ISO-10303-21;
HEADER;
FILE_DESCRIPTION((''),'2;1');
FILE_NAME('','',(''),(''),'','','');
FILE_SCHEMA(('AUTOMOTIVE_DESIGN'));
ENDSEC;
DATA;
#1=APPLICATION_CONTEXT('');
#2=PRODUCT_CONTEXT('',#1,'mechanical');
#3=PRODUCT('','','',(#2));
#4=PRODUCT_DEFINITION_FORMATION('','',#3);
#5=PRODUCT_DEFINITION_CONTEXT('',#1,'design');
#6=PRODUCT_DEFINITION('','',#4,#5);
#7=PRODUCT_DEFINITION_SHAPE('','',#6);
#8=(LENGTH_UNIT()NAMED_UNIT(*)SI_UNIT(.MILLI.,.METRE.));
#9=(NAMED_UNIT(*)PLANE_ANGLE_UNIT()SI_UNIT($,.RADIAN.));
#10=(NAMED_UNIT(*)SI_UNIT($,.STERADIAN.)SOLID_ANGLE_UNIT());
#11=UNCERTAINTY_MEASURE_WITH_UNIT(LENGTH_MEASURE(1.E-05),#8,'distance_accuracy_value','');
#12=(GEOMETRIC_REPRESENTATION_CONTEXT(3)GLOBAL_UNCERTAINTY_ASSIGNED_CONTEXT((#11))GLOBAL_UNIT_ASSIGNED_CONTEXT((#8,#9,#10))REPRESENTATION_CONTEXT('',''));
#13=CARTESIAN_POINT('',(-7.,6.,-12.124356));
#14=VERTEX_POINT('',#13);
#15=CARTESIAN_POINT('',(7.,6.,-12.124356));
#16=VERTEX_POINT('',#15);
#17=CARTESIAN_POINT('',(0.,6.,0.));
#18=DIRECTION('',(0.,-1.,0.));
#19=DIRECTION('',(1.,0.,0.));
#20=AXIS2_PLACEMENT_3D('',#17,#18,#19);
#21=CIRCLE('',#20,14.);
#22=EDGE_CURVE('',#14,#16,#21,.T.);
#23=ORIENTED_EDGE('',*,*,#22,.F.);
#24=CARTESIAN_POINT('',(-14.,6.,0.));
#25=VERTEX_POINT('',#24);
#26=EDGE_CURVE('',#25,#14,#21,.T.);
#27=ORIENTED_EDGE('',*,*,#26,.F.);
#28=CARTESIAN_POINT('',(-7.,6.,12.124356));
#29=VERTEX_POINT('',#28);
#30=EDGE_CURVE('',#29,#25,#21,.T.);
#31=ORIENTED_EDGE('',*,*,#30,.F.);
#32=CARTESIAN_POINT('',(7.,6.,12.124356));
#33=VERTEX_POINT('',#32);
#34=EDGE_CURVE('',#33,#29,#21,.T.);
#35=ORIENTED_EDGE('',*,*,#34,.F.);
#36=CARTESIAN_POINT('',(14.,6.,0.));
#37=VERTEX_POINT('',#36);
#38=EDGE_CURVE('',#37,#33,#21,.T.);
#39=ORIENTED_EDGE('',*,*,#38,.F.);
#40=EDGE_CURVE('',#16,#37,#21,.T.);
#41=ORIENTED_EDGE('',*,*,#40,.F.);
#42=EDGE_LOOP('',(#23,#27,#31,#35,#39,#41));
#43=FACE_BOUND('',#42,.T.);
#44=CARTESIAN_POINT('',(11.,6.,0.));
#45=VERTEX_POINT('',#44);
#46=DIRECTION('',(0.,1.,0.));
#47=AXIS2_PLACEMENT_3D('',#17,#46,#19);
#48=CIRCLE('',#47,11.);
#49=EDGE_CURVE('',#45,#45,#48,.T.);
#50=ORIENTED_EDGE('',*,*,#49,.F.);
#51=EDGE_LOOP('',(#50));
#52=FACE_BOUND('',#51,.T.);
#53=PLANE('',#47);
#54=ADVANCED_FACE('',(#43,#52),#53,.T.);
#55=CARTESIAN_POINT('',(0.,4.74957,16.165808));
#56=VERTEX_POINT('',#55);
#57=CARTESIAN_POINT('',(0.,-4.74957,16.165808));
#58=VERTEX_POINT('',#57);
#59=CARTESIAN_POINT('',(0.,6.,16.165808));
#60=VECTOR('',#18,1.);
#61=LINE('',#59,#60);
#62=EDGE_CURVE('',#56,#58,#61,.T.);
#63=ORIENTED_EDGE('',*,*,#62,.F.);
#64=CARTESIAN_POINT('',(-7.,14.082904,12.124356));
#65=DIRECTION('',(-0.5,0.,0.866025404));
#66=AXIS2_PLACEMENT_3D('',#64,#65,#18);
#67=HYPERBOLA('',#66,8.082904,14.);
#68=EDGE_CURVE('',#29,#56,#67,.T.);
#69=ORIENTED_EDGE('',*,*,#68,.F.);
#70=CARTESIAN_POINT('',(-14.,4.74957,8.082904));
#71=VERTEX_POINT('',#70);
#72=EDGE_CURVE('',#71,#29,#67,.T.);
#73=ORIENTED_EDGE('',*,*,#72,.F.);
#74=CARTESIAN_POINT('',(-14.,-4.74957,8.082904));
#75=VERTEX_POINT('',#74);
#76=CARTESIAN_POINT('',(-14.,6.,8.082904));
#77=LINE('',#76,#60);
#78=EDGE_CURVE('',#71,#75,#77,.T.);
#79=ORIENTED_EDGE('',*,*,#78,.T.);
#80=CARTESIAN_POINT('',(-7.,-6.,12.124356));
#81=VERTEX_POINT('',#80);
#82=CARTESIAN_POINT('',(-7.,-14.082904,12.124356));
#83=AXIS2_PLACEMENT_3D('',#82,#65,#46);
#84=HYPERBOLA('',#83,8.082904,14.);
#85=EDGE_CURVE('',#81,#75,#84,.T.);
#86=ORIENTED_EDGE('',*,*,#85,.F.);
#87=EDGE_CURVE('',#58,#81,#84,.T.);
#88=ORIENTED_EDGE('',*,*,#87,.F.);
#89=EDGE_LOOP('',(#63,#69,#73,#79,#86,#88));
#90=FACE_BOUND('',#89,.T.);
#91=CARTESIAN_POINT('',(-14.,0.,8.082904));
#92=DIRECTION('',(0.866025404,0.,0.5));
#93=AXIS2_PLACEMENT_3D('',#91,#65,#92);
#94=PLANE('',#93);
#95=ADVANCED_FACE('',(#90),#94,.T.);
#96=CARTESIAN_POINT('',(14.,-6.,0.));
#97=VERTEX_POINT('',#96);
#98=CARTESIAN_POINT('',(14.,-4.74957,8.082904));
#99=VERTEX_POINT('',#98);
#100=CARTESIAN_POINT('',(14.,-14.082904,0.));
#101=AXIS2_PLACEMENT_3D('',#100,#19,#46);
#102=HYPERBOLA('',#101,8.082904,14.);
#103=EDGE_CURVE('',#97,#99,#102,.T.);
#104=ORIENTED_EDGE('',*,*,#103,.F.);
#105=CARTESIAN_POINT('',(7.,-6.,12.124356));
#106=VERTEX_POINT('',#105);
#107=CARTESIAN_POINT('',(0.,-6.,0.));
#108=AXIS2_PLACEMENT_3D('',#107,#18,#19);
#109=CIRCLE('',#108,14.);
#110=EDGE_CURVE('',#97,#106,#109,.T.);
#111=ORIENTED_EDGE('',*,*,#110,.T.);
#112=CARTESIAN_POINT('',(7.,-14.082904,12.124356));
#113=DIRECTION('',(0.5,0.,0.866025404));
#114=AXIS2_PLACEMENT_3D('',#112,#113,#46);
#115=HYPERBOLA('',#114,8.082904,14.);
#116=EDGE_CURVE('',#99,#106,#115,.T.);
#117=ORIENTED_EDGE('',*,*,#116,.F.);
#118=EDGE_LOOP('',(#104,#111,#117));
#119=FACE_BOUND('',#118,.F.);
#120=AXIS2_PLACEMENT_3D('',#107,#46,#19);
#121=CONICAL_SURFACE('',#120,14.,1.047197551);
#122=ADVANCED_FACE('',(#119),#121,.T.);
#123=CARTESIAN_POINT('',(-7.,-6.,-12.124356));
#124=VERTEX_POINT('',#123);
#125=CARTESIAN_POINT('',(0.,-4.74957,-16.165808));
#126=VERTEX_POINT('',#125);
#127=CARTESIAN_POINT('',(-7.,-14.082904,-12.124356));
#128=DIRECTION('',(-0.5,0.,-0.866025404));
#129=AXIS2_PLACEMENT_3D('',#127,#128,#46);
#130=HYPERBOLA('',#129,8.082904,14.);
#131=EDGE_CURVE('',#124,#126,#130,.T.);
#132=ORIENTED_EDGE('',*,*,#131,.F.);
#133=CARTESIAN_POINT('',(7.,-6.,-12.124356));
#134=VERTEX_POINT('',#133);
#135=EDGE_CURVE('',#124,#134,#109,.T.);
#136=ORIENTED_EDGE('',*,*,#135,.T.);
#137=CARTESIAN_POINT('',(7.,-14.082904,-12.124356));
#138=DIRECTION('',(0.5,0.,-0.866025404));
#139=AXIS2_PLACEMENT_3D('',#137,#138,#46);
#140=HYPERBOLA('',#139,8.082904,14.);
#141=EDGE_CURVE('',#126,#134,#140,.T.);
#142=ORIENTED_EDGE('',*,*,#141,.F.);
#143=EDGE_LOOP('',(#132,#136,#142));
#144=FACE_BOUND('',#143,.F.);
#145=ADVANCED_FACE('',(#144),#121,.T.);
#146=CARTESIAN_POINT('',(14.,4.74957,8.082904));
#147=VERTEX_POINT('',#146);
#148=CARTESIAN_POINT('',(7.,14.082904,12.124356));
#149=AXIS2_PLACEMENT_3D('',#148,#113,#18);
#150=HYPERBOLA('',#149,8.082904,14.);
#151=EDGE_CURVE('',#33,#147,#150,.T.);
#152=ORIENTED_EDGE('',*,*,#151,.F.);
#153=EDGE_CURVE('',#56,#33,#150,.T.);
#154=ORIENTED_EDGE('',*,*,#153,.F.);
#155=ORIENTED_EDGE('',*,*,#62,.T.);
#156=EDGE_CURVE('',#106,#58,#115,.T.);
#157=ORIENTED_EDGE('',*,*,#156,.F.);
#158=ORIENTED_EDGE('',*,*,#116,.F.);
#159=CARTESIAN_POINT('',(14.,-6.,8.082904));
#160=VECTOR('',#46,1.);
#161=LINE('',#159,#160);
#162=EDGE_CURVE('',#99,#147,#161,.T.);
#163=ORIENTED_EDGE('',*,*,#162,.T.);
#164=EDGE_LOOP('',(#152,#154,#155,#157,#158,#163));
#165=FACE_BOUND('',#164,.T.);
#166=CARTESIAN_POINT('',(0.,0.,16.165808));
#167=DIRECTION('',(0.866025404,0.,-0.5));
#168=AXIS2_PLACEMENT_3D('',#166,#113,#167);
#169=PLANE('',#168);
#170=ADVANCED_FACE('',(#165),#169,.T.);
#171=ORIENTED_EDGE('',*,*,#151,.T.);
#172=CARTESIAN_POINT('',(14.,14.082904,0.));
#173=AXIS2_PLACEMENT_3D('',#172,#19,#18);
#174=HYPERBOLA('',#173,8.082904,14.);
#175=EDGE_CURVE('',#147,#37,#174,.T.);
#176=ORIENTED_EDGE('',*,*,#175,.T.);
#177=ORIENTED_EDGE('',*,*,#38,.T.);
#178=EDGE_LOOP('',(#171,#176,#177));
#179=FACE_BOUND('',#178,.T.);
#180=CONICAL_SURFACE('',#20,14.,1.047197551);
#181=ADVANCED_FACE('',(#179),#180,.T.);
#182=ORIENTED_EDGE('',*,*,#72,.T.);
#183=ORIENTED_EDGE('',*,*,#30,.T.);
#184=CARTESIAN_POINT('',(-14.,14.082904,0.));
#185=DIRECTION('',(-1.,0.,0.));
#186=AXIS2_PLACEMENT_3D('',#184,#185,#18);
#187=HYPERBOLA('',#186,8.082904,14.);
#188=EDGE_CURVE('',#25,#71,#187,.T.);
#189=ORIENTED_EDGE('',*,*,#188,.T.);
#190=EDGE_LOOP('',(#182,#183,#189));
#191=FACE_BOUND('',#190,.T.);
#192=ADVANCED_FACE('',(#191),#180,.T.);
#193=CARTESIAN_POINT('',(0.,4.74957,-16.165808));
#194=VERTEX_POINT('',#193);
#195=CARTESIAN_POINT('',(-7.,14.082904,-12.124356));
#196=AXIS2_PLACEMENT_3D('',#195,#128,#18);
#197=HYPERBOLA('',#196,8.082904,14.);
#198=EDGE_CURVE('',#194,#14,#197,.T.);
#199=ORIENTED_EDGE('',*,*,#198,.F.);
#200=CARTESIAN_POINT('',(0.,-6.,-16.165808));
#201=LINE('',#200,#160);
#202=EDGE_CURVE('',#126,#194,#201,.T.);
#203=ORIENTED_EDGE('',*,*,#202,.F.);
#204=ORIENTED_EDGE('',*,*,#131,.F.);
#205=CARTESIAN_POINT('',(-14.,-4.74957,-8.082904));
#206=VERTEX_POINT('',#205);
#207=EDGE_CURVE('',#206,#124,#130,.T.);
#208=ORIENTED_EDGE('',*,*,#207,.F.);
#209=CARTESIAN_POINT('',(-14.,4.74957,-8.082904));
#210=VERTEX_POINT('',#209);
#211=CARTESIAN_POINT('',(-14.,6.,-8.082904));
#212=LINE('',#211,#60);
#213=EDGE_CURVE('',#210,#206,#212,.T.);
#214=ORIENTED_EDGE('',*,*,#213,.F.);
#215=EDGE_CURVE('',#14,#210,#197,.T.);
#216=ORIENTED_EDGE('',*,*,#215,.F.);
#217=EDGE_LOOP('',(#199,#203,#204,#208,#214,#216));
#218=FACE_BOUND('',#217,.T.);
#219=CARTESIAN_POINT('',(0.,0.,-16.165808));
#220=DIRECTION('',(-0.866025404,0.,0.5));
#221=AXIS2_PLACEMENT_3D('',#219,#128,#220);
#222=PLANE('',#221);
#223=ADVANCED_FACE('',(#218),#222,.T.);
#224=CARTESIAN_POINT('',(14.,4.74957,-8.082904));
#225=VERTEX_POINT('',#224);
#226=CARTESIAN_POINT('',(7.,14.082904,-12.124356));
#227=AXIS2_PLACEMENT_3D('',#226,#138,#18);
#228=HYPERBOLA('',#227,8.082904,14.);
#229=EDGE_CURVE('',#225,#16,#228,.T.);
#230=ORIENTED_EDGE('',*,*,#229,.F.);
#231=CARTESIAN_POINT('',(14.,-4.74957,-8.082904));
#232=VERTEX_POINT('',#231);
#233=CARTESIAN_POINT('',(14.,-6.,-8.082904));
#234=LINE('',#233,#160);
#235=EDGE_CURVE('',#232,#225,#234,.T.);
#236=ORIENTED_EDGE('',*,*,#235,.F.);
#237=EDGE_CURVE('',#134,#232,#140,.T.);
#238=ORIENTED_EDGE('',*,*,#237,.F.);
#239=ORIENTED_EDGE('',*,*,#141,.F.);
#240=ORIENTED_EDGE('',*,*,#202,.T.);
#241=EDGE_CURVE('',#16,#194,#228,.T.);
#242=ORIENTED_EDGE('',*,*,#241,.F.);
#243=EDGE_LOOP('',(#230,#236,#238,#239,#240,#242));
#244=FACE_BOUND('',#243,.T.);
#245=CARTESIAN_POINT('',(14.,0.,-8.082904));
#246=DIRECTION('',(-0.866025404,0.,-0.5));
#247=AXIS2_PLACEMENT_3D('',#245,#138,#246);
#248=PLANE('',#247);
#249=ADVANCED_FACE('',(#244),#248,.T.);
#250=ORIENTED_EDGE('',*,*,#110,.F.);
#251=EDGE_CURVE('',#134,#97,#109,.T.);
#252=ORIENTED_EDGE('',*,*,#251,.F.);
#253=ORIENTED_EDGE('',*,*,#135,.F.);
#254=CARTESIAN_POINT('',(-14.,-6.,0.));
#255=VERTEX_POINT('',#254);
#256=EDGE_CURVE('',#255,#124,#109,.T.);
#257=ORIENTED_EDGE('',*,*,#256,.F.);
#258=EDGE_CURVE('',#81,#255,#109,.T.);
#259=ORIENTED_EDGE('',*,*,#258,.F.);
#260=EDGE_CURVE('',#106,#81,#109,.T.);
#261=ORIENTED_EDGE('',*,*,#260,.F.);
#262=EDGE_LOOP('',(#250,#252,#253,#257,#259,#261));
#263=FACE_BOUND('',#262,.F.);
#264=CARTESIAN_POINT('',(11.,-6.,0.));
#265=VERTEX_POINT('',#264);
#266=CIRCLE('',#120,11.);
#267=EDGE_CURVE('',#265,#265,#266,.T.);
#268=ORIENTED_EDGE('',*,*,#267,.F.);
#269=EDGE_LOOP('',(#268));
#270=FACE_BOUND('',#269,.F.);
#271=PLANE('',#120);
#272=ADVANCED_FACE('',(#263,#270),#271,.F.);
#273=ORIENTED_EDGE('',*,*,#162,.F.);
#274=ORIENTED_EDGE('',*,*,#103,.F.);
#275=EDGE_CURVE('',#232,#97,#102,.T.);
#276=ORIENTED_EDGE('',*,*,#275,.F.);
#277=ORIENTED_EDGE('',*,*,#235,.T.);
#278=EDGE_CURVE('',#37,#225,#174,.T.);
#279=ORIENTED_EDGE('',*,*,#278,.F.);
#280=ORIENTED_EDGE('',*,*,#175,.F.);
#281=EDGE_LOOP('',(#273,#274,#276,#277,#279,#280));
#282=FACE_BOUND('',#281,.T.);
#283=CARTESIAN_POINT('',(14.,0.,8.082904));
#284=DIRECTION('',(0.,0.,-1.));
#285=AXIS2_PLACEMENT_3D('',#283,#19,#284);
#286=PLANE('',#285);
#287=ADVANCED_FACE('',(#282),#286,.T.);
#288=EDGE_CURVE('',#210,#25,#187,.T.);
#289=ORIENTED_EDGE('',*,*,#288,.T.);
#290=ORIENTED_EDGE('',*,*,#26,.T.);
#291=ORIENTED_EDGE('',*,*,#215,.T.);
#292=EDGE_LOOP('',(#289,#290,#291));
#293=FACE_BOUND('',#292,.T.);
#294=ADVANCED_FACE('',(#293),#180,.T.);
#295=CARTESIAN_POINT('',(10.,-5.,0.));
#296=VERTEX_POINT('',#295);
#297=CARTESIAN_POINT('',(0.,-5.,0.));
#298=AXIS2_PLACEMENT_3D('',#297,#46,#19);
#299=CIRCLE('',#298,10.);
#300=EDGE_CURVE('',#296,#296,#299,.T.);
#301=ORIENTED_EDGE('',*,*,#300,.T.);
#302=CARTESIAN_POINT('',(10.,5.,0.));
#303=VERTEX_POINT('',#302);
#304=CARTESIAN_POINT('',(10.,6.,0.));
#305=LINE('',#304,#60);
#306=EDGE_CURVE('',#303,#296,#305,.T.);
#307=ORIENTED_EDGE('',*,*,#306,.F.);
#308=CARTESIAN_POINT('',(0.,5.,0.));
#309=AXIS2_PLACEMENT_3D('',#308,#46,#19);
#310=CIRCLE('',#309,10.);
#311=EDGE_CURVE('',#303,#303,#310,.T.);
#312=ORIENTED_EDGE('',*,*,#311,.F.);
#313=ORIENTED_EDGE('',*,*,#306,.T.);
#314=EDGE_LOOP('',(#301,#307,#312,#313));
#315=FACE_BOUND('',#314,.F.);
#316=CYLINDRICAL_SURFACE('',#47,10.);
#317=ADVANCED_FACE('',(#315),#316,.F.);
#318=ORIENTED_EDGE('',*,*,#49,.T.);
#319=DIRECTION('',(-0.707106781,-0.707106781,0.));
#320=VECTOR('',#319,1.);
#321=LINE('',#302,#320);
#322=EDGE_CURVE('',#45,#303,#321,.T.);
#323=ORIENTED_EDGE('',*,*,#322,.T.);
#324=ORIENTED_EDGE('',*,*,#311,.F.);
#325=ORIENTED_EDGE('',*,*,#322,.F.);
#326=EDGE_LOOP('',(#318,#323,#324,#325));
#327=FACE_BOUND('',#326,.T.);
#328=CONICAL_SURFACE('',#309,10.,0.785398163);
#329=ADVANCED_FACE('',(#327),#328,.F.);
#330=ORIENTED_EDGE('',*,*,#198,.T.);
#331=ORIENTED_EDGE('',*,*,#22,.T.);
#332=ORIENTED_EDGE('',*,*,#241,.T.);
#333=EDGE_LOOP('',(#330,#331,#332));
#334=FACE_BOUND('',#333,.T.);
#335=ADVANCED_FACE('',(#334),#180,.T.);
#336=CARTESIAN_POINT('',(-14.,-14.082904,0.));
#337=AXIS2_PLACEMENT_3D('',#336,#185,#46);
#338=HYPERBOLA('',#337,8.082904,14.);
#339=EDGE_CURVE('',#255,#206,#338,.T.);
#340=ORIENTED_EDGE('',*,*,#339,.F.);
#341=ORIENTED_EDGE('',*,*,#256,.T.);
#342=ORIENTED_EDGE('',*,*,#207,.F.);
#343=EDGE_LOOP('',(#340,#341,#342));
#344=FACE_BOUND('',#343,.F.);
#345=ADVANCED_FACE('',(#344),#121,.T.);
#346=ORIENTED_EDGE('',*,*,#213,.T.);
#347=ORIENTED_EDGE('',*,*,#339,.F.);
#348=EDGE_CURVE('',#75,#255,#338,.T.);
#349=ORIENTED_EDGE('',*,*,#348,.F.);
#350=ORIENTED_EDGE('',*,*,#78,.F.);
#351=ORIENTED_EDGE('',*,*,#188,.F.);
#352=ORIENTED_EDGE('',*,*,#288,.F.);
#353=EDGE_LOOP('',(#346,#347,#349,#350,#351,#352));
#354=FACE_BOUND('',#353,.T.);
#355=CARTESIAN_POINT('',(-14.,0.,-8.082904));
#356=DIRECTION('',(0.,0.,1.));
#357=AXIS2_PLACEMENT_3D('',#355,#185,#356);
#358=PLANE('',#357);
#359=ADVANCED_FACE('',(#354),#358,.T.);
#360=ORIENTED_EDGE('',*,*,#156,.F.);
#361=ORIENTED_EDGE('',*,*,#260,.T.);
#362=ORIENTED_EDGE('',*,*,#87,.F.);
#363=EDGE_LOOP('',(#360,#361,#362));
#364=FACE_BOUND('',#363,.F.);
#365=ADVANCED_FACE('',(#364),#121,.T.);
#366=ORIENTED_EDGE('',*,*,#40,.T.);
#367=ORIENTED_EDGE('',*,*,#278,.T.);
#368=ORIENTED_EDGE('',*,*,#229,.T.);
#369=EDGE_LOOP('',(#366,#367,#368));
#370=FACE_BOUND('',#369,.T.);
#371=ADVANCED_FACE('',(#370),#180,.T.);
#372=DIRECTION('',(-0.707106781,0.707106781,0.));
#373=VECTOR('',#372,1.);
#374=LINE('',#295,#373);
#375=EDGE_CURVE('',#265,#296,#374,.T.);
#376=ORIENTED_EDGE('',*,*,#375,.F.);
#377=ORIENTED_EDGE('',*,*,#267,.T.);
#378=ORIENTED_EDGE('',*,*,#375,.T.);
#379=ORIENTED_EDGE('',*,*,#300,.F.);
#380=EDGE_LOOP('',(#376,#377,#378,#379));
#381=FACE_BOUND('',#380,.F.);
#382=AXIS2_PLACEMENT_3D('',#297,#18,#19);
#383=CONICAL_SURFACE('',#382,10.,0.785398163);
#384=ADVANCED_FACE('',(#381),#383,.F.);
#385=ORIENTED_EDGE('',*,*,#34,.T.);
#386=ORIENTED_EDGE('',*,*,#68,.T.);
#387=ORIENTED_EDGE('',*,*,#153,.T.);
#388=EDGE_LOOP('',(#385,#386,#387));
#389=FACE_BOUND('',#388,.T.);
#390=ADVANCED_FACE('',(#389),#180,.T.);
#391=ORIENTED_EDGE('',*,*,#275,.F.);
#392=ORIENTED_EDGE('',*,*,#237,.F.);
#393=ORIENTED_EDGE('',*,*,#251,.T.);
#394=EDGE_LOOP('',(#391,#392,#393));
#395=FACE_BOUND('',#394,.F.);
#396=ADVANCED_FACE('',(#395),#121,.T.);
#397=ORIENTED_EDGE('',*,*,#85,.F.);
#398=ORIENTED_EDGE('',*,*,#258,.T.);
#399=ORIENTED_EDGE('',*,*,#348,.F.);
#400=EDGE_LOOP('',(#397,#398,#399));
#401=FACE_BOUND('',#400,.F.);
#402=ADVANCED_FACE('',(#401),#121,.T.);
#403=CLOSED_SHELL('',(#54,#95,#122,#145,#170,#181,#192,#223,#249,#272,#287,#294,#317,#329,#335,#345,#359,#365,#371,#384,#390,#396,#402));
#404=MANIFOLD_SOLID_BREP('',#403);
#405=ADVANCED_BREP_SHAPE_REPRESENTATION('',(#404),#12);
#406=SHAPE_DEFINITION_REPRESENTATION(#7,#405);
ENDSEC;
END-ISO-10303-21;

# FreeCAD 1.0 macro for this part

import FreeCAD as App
import Part
import Sketcher
Q = App.Units.Quantity


def edges_at(feature, points):
    """Names of the edges that pass closest to the given points."""
    edges = feature.Shape.Edges
    near = lambda p: min(range(len(edges)), key=lambda i: edges[i].distToShape(Part.Vertex(*p))[0])
    return sorted({f"Edge{near(p) + 1}" for p in points})

doc = App.newDocument("Part")
body = doc.addObject("PartDesign::Body", "Body")

sketch1 = body.newObject("Sketcher::SketchObject", "Sketch")
sketch1.AttachmentSupport = (doc.getObject("XZ_Plane"), [""])
sketch1.MapMode = "FlatFace"
sketch1.addGeometry(Part.LineSegment(App.Vector(0, 16.165808, 0), App.Vector(14, 8.082904, 0)), False)
sketch1.addGeometry(Part.LineSegment(App.Vector(14, 8.082904, 0), App.Vector(14, -8.082904, 0)), False)
sketch1.addGeometry(Part.LineSegment(App.Vector(14, -8.082904, 0), App.Vector(0, -16.165808, 0)), False)
sketch1.addGeometry(Part.LineSegment(App.Vector(0, -16.165808, 0), App.Vector(-14, -8.082904, 0)), False)
sketch1.addGeometry(Part.LineSegment(App.Vector(-14, -8.082904, 0), App.Vector(-14, 8.082904, 0)), False)
sketch1.addGeometry(Part.LineSegment(App.Vector(-14, 8.082904, 0), App.Vector(0, 16.165808, 0)), False)
sketch1.addConstraint(Sketcher.Constraint("Coincident", 0, 2, 1, 1))
sketch1.addConstraint(Sketcher.Constraint("Coincident", 1, 2, 2, 1))
sketch1.addConstraint(Sketcher.Constraint("Coincident", 2, 2, 3, 1))
sketch1.addConstraint(Sketcher.Constraint("Coincident", 3, 2, 4, 1))
sketch1.addConstraint(Sketcher.Constraint("Coincident", 4, 2, 5, 1))
sketch1.addConstraint(Sketcher.Constraint("Coincident", 5, 2, 0, 1))
sketch1.addConstraint(Sketcher.Constraint("Vertical", 1))
sketch1.addConstraint(Sketcher.Constraint("Vertical", 4))
sketch1.addConstraint(Sketcher.Constraint("Symmetric", 0, 2, 3, 2, -1, 1))
sketch1.addConstraint(Sketcher.Constraint("Symmetric", 2, 2, 5, 2, -1, 1))
sketch1.addConstraint(Sketcher.Constraint("PointOnObject", 2, 2, -2))
sketch1.addConstraint(Sketcher.Constraint("Parallel", 2, 5))
sketch1.addConstraint(Sketcher.Constraint("Horizontal", 1, 2, 3, 2))
sketch1.addConstraint(Sketcher.Constraint("Angle", 0, Q("-30 deg")))
sketch1.addConstraint(Sketcher.Constraint("DistanceX", -1, 1, 0, 2, Q("14 mm")))
sketch1.addConstraint(Sketcher.Constraint("DistanceY", 1, 2, 1, 1, Q("16.165808 mm")))
pad1 = body.newObject("PartDesign::Pad", "Pad")
pad1.Profile = sketch1
pad1.Length = 12
pad1.Midplane = True

sketch2 = body.newObject("Sketcher::SketchObject", "Sketch001")
sketch2.AttachmentSupport = (doc.getObject("XZ_Plane"), [""])
sketch2.MapMode = "FlatFace"
sketch2.AttachmentOffset = App.Placement(App.Vector(0, 0, -6), App.Rotation())
sketch2.addGeometry(Part.LineSegment(App.Vector(-40.227, -42.393, 0), App.Vector(-40.227, 42.393, 0)), False)
sketch2.addGeometry(Part.LineSegment(App.Vector(-40.227, 42.393, 0), App.Vector(40.227, 42.393, 0)), False)
sketch2.addGeometry(Part.LineSegment(App.Vector(40.227, 42.393, 0), App.Vector(40.227, -42.393, 0)), False)
sketch2.addGeometry(Part.LineSegment(App.Vector(40.227, -42.393, 0), App.Vector(-40.227, -42.393, 0)), False)
sketch2.addGeometry(Part.Circle(App.Vector(0, 0, 0), App.Vector(0, 0, 1), 14), False)
sketch2.addConstraint(Sketcher.Constraint("Coincident", 0, 2, 1, 1))
sketch2.addConstraint(Sketcher.Constraint("Coincident", 1, 2, 2, 1))
sketch2.addConstraint(Sketcher.Constraint("Coincident", 2, 2, 3, 1))
sketch2.addConstraint(Sketcher.Constraint("Coincident", 3, 2, 0, 1))
sketch2.addConstraint(Sketcher.Constraint("Vertical", 0))
sketch2.addConstraint(Sketcher.Constraint("Horizontal", 1))
sketch2.addConstraint(Sketcher.Constraint("Vertical", 2))
sketch2.addConstraint(Sketcher.Constraint("Horizontal", 3))
sketch2.addConstraint(Sketcher.Constraint("Coincident", 4, 3, -1, 1))
sketch2.addConstraint(Sketcher.Constraint("Symmetric", 0, 2, 2, 2, -1, 1))
sketch2.addConstraint(Sketcher.Constraint("Diameter", 4, Q("28 mm")))
sketch2.addConstraint(Sketcher.Constraint("DistanceX", 1, 1, 1, 2, Q("80.454 mm")))
sketch2.addConstraint(Sketcher.Constraint("DistanceY", 0, 1, 0, 2, Q("84.786 mm")))
pocket1 = body.newObject("PartDesign::Pocket", "Pocket")
pocket1.Profile = sketch2
pocket1.Length = 12
pocket1.Reversed = True
pocket1.TaperAngle = 60
doc.recompute()

mirrored = body.newObject("PartDesign::Mirrored", "Mirrored")
mirrored.Originals = [pocket1]
mirrored.MirrorPlane = (doc.getObject("XZ_Plane"), [""])
body.Tip = mirrored

sketch3 = body.newObject("Sketcher::SketchObject", "Sketch002")
sketch3.AttachmentSupport = (doc.getObject("XZ_Plane"), [""])
sketch3.MapMode = "FlatFace"
sketch3.AttachmentOffset = App.Placement(App.Vector(0, 0, -6), App.Rotation())
sketch3.addGeometry(Part.Circle(App.Vector(0, 0, 0), App.Vector(0, 0, 1), 10), False)
sketch3.addConstraint(Sketcher.Constraint("Coincident", 0, 3, -1, 1))
sketch3.addConstraint(Sketcher.Constraint("Diameter", 0, Q("20 mm")))
pocket2 = body.newObject("PartDesign::Pocket", "Pocket001")
pocket2.Profile = sketch3
pocket2.Type = "ThroughAll"
pocket2.Reversed = True
doc.recompute()

chamfer = body.newObject("PartDesign::Chamfer", "Chamfer")
chamfer.Base = (pocket2, edges_at(pocket2, [(-10, -6, 0), (-10, 6, 0)]))
chamfer.Size = 1

doc.recompute()
